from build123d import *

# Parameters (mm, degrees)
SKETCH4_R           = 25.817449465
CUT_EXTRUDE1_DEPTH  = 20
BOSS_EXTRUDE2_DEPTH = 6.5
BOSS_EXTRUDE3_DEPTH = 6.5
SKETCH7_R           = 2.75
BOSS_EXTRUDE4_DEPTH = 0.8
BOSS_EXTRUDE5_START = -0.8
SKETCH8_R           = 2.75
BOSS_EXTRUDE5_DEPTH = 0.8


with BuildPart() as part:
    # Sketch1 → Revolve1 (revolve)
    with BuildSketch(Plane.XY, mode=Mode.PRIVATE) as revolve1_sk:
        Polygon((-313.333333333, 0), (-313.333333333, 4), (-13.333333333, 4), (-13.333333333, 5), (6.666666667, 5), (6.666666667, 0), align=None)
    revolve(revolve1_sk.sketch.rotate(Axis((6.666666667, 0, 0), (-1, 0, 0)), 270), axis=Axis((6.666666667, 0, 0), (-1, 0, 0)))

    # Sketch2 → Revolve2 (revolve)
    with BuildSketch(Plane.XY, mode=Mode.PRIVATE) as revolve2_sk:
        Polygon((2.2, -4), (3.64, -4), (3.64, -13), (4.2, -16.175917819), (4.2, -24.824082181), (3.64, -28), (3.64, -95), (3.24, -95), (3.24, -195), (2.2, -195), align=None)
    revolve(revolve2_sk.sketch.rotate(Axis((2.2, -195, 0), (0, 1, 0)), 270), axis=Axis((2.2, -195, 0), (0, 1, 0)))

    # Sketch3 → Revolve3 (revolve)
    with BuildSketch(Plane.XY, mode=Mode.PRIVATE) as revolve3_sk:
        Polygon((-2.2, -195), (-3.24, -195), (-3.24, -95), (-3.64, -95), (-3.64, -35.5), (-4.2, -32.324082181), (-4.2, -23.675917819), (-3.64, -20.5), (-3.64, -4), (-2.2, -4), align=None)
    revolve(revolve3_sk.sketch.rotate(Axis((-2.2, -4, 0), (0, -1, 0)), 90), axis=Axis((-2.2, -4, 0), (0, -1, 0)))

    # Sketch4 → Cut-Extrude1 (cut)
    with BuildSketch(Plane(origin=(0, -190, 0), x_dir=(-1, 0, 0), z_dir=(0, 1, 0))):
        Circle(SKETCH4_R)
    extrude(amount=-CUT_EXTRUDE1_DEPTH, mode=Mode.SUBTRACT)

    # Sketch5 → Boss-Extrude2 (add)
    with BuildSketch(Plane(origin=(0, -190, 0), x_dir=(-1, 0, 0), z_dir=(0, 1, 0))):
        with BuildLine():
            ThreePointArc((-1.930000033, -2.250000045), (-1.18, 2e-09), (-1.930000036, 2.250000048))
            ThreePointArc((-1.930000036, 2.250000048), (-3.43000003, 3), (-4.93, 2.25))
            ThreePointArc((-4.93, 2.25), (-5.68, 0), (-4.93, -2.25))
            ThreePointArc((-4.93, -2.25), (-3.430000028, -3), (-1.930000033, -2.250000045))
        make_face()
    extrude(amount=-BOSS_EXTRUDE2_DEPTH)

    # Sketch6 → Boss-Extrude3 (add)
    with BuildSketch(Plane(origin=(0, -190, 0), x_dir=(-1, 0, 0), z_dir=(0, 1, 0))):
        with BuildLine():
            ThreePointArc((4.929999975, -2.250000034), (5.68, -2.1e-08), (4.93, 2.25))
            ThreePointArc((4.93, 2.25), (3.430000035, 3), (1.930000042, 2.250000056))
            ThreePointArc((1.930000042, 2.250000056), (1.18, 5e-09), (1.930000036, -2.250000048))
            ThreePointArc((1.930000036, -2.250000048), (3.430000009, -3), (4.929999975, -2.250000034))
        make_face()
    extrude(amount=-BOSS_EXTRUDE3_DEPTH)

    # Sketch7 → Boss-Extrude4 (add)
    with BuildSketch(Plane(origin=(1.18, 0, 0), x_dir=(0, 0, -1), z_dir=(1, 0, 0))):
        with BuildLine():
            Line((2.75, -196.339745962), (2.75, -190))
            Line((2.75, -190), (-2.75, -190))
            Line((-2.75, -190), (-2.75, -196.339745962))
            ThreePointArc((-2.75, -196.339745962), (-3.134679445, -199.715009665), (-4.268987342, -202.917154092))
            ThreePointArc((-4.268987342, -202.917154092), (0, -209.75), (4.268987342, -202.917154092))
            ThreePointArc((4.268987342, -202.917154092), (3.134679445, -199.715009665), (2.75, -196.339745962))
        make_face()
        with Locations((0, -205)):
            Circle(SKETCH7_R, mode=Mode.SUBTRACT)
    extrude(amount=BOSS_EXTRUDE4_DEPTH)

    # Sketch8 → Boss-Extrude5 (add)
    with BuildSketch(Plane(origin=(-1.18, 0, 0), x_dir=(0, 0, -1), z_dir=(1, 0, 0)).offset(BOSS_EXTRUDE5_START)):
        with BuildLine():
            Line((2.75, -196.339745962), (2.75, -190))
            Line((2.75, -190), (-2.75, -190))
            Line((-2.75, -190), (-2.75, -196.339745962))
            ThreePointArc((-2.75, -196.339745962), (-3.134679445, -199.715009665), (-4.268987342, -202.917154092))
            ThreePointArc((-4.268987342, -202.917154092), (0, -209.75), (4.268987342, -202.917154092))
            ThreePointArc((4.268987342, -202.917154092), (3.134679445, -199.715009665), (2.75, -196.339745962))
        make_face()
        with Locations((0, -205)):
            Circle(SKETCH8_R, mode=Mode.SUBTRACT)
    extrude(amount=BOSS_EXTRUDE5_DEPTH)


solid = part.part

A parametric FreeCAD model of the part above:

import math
import FreeCAD as App
import Part
import Sketcher

V = App.Vector
Q = App.Units.Quantity

doc = App.newDocument("Part")
body = doc.addObject("PartDesign::Body", "Body")

# Sketch on XY plane
sketch1 = body.newObject("Sketcher::SketchObject", "Sketch")
sketch1.AttachmentSupport = (doc.getObject("XY_Plane"), [""])
sketch1.MapMode = "FlatFace"
sketch1.addGeometry([
    Part.LineSegment(V(-313.3, 4, 0), V(-313.3, 0, 0)),  # 0
    Part.LineSegment(V(-313.3, 0, 0), V(6.7, 0, 0)),  # 1
    Part.LineSegment(V(6.7, 0, 0), V(6.7, 5, 0)),  # 2
    Part.LineSegment(V(6.7, 5, 0), V(-13.3, 5, 0)),  # 3
    Part.LineSegment(V(-13.3, 5, 0), V(-13.3, 4, 0)),  # 4
    Part.LineSegment(V(-13.3, 4, 0), V(-313.3, 4, 0)),  # 5
], False)
sketch1.addConstraint([
    Sketcher.Constraint("Coincident", 0, 2, 1, 1),
    Sketcher.Constraint("Coincident", 1, 2, 2, 1),
    Sketcher.Constraint("Coincident", 2, 2, 3, 1),
    Sketcher.Constraint("Coincident", 3, 2, 4, 1),
    Sketcher.Constraint("Coincident", 4, 2, 5, 1),
    Sketcher.Constraint("Coincident", 5, 2, 0, 1),
    Sketcher.Constraint("Vertical", 0),
    Sketcher.Constraint("Horizontal", 1),
    Sketcher.Constraint("Vertical", 2),
    Sketcher.Constraint("Horizontal", 3),
    Sketcher.Constraint("Vertical", 4),
    Sketcher.Constraint("Horizontal", 5),
    Sketcher.Constraint("PointOnObject", 0, 2, -1),
    Sketcher.Constraint("DistanceX", 1, 1, 1, 2, Q("320 mm")),
    Sketcher.Constraint("DistanceX", 3, 2, 3, 1, Q("20 mm")),
    Sketcher.Constraint("DistanceY", 0, 2, 0, 1, Q("4 mm")),
    Sketcher.Constraint("DistanceY", 2, 1, 2, 2, Q("5 mm")),
    Sketcher.Constraint("DistanceX", 0, 2, -1, 1, Q("313.333333 mm")),
])
revolution = body.newObject("PartDesign::Revolution", "Revolution")
revolution.Profile = sketch1
revolution.ReferenceAxis = (sketch1, ["H_Axis"])
revolution.Angle = 360

# Sketch on XY plane
sketch2 = body.newObject("Sketcher::SketchObject", "Sketch001")
sketch2.AttachmentSupport = (doc.getObject("XY_Plane"), [""])
sketch2.MapMode = "FlatFace"
sketch2.addGeometry([
    Part.LineSegment(V(3.64, -4, 0), V(2.2, -4, 0)),  # 0
    Part.LineSegment(V(2.2, -4, 0), V(2.2, -195, 0)),  # 1
    Part.LineSegment(V(2.2, -195, 0), V(3.24, -195, 0)),  # 2
    Part.LineSegment(V(3.24, -195, 0), V(3.24, -95, 0)),  # 3
    Part.LineSegment(V(3.24, -95, 0), V(3.64, -95, 0)),  # 4
    Part.LineSegment(V(3.64, -95, 0), V(3.64, -28, 0)),  # 5
    Part.LineSegment(V(3.64, -28, 0), V(4.2, -24.82, 0)),  # 6
    Part.LineSegment(V(4.2, -24.82, 0), V(4.2, -16.18, 0)),  # 7
    Part.LineSegment(V(4.2, -16.18, 0), V(3.64, -13, 0)),  # 8
    Part.LineSegment(V(3.64, -13, 0), V(3.64, -4, 0)),  # 9
], False)
sketch2.addGeometry(Part.LineSegment(V(2.2, -195, 0), V(2.2, -4, 0)), True)  # axis
sketch2.addConstraint([
    Sketcher.Constraint("Coincident", 0, 2, 1, 1),
    Sketcher.Constraint("Coincident", 1, 2, 2, 1),
    Sketcher.Constraint("Coincident", 2, 2, 3, 1),
    Sketcher.Constraint("Coincident", 3, 2, 4, 1),
    Sketcher.Constraint("Coincident", 4, 2, 5, 1),
    Sketcher.Constraint("Coincident", 5, 2, 6, 1),
    Sketcher.Constraint("Coincident", 6, 2, 7, 1),
    Sketcher.Constraint("Coincident", 7, 2, 8, 1),
    Sketcher.Constraint("Coincident", 8, 2, 9, 1),
    Sketcher.Constraint("Coincident", 9, 2, 0, 1),
    Sketcher.Constraint("Horizontal", 0),
    Sketcher.Constraint("Vertical", 1),
    Sketcher.Constraint("Horizontal", 2),
    Sketcher.Constraint("Vertical", 3),
    Sketcher.Constraint("Horizontal", 4),
    Sketcher.Constraint("Vertical", 5),
    Sketcher.Constraint("Vertical", 7),
    Sketcher.Constraint("Vertical", 9),
    Sketcher.Constraint("Vertical", 10),
    Sketcher.Constraint("Coincident", 10, 1, 1, 2),
    Sketcher.Constraint("Horizontal", 9, 2, 10, 2),
    Sketcher.Constraint("Vertical", 5, 2, 8, 2),
    Sketcher.Constraint("Equal", 6, 8),
    Sketcher.Constraint("DistanceY", 1, 2, 1, 1, Q("191 mm")),
    Sketcher.Constraint("DistanceY", 3, 1, 3, 2, Q("100 mm")),
    Sketcher.Constraint("DistanceY", 5, 1, 5, 2, Q("67 mm")),
    Sketcher.Constraint("DistanceY", 9, 1, 9, 2, Q("9 mm")),
    Sketcher.Constraint("Angle", 6, Q("80 deg")),
    Sketcher.Constraint("DistanceX", 4, 1, 4, 2, Q("0.4 mm")),
    Sketcher.Constraint("DistanceY", 0, 2, -1, 1, Q("4 mm")),
    Sketcher.Constraint("DistanceX", 0, 2, 6, 2, Q("2 mm")),
    Sketcher.Constraint("DistanceX", 0, 2, 0, 1, Q("1.44 mm")),
    Sketcher.Constraint("DistanceX", -1, 1, 0, 2, Q("2.2 mm")),
])
revolution2 = body.newObject("PartDesign::Revolution", "Revolution001")
revolution2.Profile = sketch2
revolution2.ReferenceAxis = (sketch2, ["Axis0"])
revolution2.Angle = 360

# Sketch on XY plane
sketch3 = body.newObject("Sketcher::SketchObject", "Sketch002")
sketch3.AttachmentSupport = (doc.getObject("XY_Plane"), [""])
sketch3.MapMode = "FlatFace"
sketch3.addGeometry([
    Part.LineSegment(V(-3.24, -195, 0), V(-2.2, -195, 0)),  # 0
    Part.LineSegment(V(-2.2, -195, 0), V(-2.2, -4, 0)),  # 1
    Part.LineSegment(V(-2.2, -4, 0), V(-3.64, -4, 0)),  # 2
    Part.LineSegment(V(-3.64, -4, 0), V(-3.64, -20.5, 0)),  # 3
    Part.LineSegment(V(-3.64, -20.5, 0), V(-4.2, -23.68, 0)),  # 4
    Part.LineSegment(V(-4.2, -23.68, 0), V(-4.2, -32.32, 0)),  # 5
    Part.LineSegment(V(-4.2, -32.32, 0), V(-3.64, -35.5, 0)),  # 6
    Part.LineSegment(V(-3.64, -35.5, 0), V(-3.64, -95, 0)),  # 7
    Part.LineSegment(V(-3.64, -95, 0), V(-3.24, -95, 0)),  # 8
    Part.LineSegment(V(-3.24, -95, 0), V(-3.24, -195, 0)),  # 9
], False)
sketch3.addGeometry(Part.LineSegment(V(-2.2, -4, 0), V(-2.2, -195, 0)), True)  # axis
sketch3.addConstraint([
    Sketcher.Constraint("Coincident", 0, 2, 1, 1),
    Sketcher.Constraint("Coincident", 1, 2, 2, 1),
    Sketcher.Constraint("Coincident", 2, 2, 3, 1),
    Sketcher.Constraint("Coincident", 3, 2, 4, 1),
    Sketcher.Constraint("Coincident", 4, 2, 5, 1),
    Sketcher.Constraint("Coincident", 5, 2, 6, 1),
    Sketcher.Constraint("Coincident", 6, 2, 7, 1),
    Sketcher.Constraint("Coincident", 7, 2, 8, 1),
    Sketcher.Constraint("Coincident", 8, 2, 9, 1),
    Sketcher.Constraint("Coincident", 9, 2, 0, 1),
    Sketcher.Constraint("Horizontal", 0),
    Sketcher.Constraint("Vertical", 1),
    Sketcher.Constraint("Horizontal", 2),
    Sketcher.Constraint("Vertical", 3),
    Sketcher.Constraint("Vertical", 5),
    Sketcher.Constraint("Vertical", 7),
    Sketcher.Constraint("Horizontal", 8),
    Sketcher.Constraint("Vertical", 9),
    Sketcher.Constraint("Vertical", 10),
    Sketcher.Constraint("Coincident", 10, 1, 1, 2),
    Sketcher.Constraint("Horizontal", 9, 2, 10, 2),
    Sketcher.Constraint("Vertical", 3, 2, 6, 2),
    Sketcher.Constraint("Equal", 4, 6),
    Sketcher.Constraint("DistanceY", 1, 1, 1, 2, Q("191 mm")),
    Sketcher.Constraint("DistanceY", 9, 2, 9, 1, Q("100 mm")),
    Sketcher.Constraint("Angle", 4, Q("-100 deg")),
    Sketcher.Constraint("DistanceX", 8, 1, 8, 2, Q("0.4 mm")),
    Sketcher.Constraint("DistanceY", 3, 2, 3, 1, Q("16.5 mm")),
    Sketcher.Constraint("DistanceY", 7, 2, 7, 1, Q("59.5 mm")),
    Sketcher.Constraint("DistanceY", 0, 2, -1, 1, Q("195 mm")),
    Sketcher.Constraint("DistanceX", 4, 2, 1, 2, Q("2 mm")),
    Sketcher.Constraint("DistanceX", 0, 1, 0, 2, Q("1.04 mm")),
    Sketcher.Constraint("DistanceX", 0, 2, -1, 1, Q("2.2 mm")),
])
revolution3 = body.newObject("PartDesign::Revolution", "Revolution002")
revolution3.Profile = sketch3
revolution3.ReferenceAxis = (sketch3, ["Axis0"])
revolution3.Angle = 360

# Sketch on XZ plane
sketch4 = body.newObject("Sketcher::SketchObject", "Sketch003")
sketch4.AttachmentSupport = (doc.getObject("XZ_Plane"), [""])
sketch4.MapMode = "FlatFace"
sketch4.AttachmentOffset = App.Placement(V(0, 0, 190), App.Rotation())
sketch4.addGeometry(Part.Circle(V(0, 0, 0), V(0, 0, 1), 26), False)
sketch4.addConstraint([
    Sketcher.Constraint("Coincident", 0, 3, -1, 1),
    Sketcher.Constraint("Diameter", 0, Q("51.634899 mm")),
])
pocket1 = body.newObject("PartDesign::Pocket", "Pocket")
pocket1.Profile = sketch4
pocket1.Length = 20
pocket1.Reversed = True

# Sketch on XZ plane
sketch5 = body.newObject("Sketcher::SketchObject", "Sketch004")
sketch5.AttachmentSupport = (doc.getObject("XZ_Plane"), [""])
sketch5.MapMode = "FlatFace"
sketch5.AttachmentOffset = App.Placement(V(0, 0, 190), App.Rotation())
sketch5.addGeometry([
    Part.ArcOfCircle(Part.Circle(V(4.9, 0, 0), V(0, 0, 1), 3.8), math.radians(143), math.radians(217)),
    Part.ArcOfCircle(Part.Circle(V(3.4, 1.1, 0), V(0, 0, 1), 1.9), math.radians(37), math.radians(143)),
    Part.ArcOfCircle(Part.Circle(V(1.9, 0, 0), V(0, 0, 1), 3.8), math.radians(-37), math.radians(37)),
    Part.ArcOfCircle(Part.Circle(V(3.4, -1.1, 0), V(0, 0, 1), 1.9), math.radians(-143), math.radians(-37)),
], False)
sketch5.addConstraint([
    Sketcher.Constraint("Tangent", 0, 1, 1, 2),
    Sketcher.Constraint("Tangent", 1, 1, 2, 2),
    Sketcher.Constraint("Tangent", 2, 1, 3, 2),
    Sketcher.Constraint("Tangent", 3, 1, 0, 2),
    Sketcher.Constraint("Equal", 0, 2),
    Sketcher.Constraint("Equal", 1, 3),
    Sketcher.Constraint("Symmetric", 1, 3, 3, 3, -1),
    Sketcher.Constraint("Vertical", 2, 3, 0, 1),
    Sketcher.Constraint("Radius", 0, Q("3.75 mm")),
    Sketcher.Constraint("DistanceX", 2, 3, 0, 3, Q("3 mm")),
    Sketcher.Constraint("DistanceX", -1, 1, 0, 3, Q("4.93 mm")),
])
pad1 = body.newObject("PartDesign::Pad", "Pad")
pad1.Profile = sketch5
pad1.Length = 6.5

# Sketch on XZ plane
sketch6 = body.newObject("Sketcher::SketchObject", "Sketch005")
sketch6.AttachmentSupport = (doc.getObject("XZ_Plane"), [""])
sketch6.MapMode = "FlatFace"
sketch6.AttachmentOffset = App.Placement(V(0, 0, 190), App.Rotation())
sketch6.addGeometry([
    Part.ArcOfCircle(Part.Circle(V(-1.9, 0, 0), V(0, 0, 1), 3.8), math.radians(143), math.radians(217)),
    Part.ArcOfCircle(Part.Circle(V(-3.4, 1.1, 0), V(0, 0, 1), 1.9), math.radians(37), math.radians(143)),
    Part.ArcOfCircle(Part.Circle(V(-4.9, 0, 0), V(0, 0, 1), 3.8), math.radians(-37), math.radians(37)),
    Part.ArcOfCircle(Part.Circle(V(-3.4, -1.1, 0), V(0, 0, 1), 1.9), math.radians(-143), math.radians(-37)),
], False)
sketch6.addConstraint([
    Sketcher.Constraint("Tangent", 0, 1, 1, 2),
    Sketcher.Constraint("Tangent", 1, 1, 2, 2),
    Sketcher.Constraint("Tangent", 2, 1, 3, 2),
    Sketcher.Constraint("Tangent", 3, 1, 0, 2),
    Sketcher.Constraint("Equal", 0, 2),
    Sketcher.Constraint("Equal", 1, 3),
    Sketcher.Constraint("Symmetric", 1, 3, 3, 3, -1),
    Sketcher.Constraint("Vertical", 2, 3, 0, 1),
    Sketcher.Constraint("Radius", 0, Q("3.75 mm")),
    Sketcher.Constraint("DistanceX", 2, 3, 0, 3, Q("3 mm")),
    Sketcher.Constraint("DistanceX", 0, 3, -1, 1, Q("1.93 mm")),
])
pad2 = body.newObject("PartDesign::Pad", "Pad001")
pad2.Profile = sketch6
pad2.Length = 6.5

# Sketch on YZ plane
sketch7 = body.newObject("Sketcher::SketchObject", "Sketch006")
sketch7.AttachmentSupport = (doc.getObject("YZ_Plane"), [""])
sketch7.MapMode = "FlatFace"
sketch7.AttachmentOffset = App.Placement(V(0, 0, 1.18), App.Rotation())
sketch7.addGeometry([
    Part.LineSegment(V(-196.3, -2.8, 0), V(-190, -2.8, 0)),  # 0
    Part.LineSegment(V(-190, -2.8, 0), V(-190, 2.8, 0)),  # 1
    Part.LineSegment(V(-190, 2.8, 0), V(-196.3, 2.8, 0)),  # 2
    Part.ArcOfCircle(Part.Circle(V(-196.3, 17.8, 0), V(0, 0, 1), 15), math.radians(-116), math.radians(-90)),  # 3
    Part.ArcOfCircle(Part.Circle(V(-205, 0, 0), V(0, 0, 1), 4.8), math.radians(64), math.radians(296)),  # 4
    Part.ArcOfCircle(Part.Circle(V(-196.3, -17.8, 0), V(0, 0, 1), 15), math.radians(90), math.radians(116)),  # 5
    Part.Circle(V(-205, 0, 0), V(0, 0, 1), 2.8),  # 6
], False)
sketch7.addConstraint([
    Sketcher.Constraint("Coincident", 0, 2, 1, 1),
    Sketcher.Constraint("Coincident", 1, 2, 2, 1),
    Sketcher.Constraint("Tangent", 2, 2, 3, 2),
    Sketcher.Constraint("Tangent", 3, 1, 4, 1),
    Sketcher.Constraint("Tangent", 4, 2, 5, 2),
    Sketcher.Constraint("Tangent", 5, 1, 0, 1),
    Sketcher.Constraint("Horizontal", 0),
    Sketcher.Constraint("Vertical", 1),
    Sketcher.Constraint("Horizontal", 2),
    Sketcher.Constraint("Coincident", 6, 3, 4, 3),
    Sketcher.Constraint("Equal", 3, 5),
    Sketcher.Constraint("Symmetric", 3, 3, 5, 3, -1),
    Sketcher.Constraint("Radius", 3, Q("15 mm")),
    Sketcher.Constraint("Diameter", 6, Q("5.5 mm")),
    Sketcher.Constraint("Radius", 4, Q("4.75 mm")),
    Sketcher.Constraint("DistanceY", 1, 1, 1, 2, Q("5.5 mm")),
    Sketcher.Constraint("DistanceX", 4, 3, -1, 1, Q("205 mm")),
    Sketcher.Constraint("DistanceX", 0, 2, -1, 1, Q("190 mm")),
])
pad3 = body.newObject("PartDesign::Pad", "Pad002")
pad3.Profile = sketch7
pad3.Length = 0.8

# Sketch on YZ plane
sketch8 = body.newObject("Sketcher::SketchObject", "Sketch007")
sketch8.AttachmentSupport = (doc.getObject("YZ_Plane"), [""])
sketch8.MapMode = "FlatFace"
sketch8.AttachmentOffset = App.Placement(V(0, 0, -1.98), App.Rotation())
sketch8.addGeometry([
    Part.LineSegment(V(-196.3, -2.8, 0), V(-190, -2.8, 0)),  # 0
    Part.LineSegment(V(-190, -2.8, 0), V(-190, 2.8, 0)),  # 1
    Part.LineSegment(V(-190, 2.8, 0), V(-196.3, 2.8, 0)),  # 2
    Part.ArcOfCircle(Part.Circle(V(-196.3, 17.8, 0), V(0, 0, 1), 15), math.radians(-116), math.radians(-90)),  # 3
    Part.ArcOfCircle(Part.Circle(V(-205, 0, 0), V(0, 0, 1), 4.8), math.radians(64), math.radians(296)),  # 4
    Part.ArcOfCircle(Part.Circle(V(-196.3, -17.8, 0), V(0, 0, 1), 15), math.radians(90), math.radians(116)),  # 5
    Part.Circle(V(-205, 0, 0), V(0, 0, 1), 2.8),  # 6
], False)
sketch8.addConstraint([
    Sketcher.Constraint("Coincident", 0, 2, 1, 1),
    Sketcher.Constraint("Coincident", 1, 2, 2, 1),
    Sketcher.Constraint("Tangent", 2, 2, 3, 2),
    Sketcher.Constraint("Tangent", 3, 1, 4, 1),
    Sketcher.Constraint("Tangent", 4, 2, 5, 2),
    Sketcher.Constraint("Tangent", 5, 1, 0, 1),
    Sketcher.Constraint("Horizontal", 0),
    Sketcher.Constraint("Vertical", 1),
    Sketcher.Constraint("Horizontal", 2),
    Sketcher.Constraint("Coincident", 6, 3, 4, 3),
    Sketcher.Constraint("Equal", 3, 5),
    Sketcher.Constraint("Symmetric", 3, 3, 5, 3, -1),
    Sketcher.Constraint("Radius", 3, Q("15 mm")),
    Sketcher.Constraint("Diameter", 6, Q("5.5 mm")),
    Sketcher.Constraint("Radius", 4, Q("4.75 mm")),
    Sketcher.Constraint("DistanceY", 1, 1, 1, 2, Q("5.5 mm")),
    Sketcher.Constraint("DistanceX", 4, 3, -1, 1, Q("205 mm")),
    Sketcher.Constraint("DistanceX", 0, 2, -1, 1, Q("190 mm")),
])
pad4 = body.newObject("PartDesign::Pad", "Pad003")
pad4.Profile = sketch8
pad4.Length = 0.8

doc.recompute()
